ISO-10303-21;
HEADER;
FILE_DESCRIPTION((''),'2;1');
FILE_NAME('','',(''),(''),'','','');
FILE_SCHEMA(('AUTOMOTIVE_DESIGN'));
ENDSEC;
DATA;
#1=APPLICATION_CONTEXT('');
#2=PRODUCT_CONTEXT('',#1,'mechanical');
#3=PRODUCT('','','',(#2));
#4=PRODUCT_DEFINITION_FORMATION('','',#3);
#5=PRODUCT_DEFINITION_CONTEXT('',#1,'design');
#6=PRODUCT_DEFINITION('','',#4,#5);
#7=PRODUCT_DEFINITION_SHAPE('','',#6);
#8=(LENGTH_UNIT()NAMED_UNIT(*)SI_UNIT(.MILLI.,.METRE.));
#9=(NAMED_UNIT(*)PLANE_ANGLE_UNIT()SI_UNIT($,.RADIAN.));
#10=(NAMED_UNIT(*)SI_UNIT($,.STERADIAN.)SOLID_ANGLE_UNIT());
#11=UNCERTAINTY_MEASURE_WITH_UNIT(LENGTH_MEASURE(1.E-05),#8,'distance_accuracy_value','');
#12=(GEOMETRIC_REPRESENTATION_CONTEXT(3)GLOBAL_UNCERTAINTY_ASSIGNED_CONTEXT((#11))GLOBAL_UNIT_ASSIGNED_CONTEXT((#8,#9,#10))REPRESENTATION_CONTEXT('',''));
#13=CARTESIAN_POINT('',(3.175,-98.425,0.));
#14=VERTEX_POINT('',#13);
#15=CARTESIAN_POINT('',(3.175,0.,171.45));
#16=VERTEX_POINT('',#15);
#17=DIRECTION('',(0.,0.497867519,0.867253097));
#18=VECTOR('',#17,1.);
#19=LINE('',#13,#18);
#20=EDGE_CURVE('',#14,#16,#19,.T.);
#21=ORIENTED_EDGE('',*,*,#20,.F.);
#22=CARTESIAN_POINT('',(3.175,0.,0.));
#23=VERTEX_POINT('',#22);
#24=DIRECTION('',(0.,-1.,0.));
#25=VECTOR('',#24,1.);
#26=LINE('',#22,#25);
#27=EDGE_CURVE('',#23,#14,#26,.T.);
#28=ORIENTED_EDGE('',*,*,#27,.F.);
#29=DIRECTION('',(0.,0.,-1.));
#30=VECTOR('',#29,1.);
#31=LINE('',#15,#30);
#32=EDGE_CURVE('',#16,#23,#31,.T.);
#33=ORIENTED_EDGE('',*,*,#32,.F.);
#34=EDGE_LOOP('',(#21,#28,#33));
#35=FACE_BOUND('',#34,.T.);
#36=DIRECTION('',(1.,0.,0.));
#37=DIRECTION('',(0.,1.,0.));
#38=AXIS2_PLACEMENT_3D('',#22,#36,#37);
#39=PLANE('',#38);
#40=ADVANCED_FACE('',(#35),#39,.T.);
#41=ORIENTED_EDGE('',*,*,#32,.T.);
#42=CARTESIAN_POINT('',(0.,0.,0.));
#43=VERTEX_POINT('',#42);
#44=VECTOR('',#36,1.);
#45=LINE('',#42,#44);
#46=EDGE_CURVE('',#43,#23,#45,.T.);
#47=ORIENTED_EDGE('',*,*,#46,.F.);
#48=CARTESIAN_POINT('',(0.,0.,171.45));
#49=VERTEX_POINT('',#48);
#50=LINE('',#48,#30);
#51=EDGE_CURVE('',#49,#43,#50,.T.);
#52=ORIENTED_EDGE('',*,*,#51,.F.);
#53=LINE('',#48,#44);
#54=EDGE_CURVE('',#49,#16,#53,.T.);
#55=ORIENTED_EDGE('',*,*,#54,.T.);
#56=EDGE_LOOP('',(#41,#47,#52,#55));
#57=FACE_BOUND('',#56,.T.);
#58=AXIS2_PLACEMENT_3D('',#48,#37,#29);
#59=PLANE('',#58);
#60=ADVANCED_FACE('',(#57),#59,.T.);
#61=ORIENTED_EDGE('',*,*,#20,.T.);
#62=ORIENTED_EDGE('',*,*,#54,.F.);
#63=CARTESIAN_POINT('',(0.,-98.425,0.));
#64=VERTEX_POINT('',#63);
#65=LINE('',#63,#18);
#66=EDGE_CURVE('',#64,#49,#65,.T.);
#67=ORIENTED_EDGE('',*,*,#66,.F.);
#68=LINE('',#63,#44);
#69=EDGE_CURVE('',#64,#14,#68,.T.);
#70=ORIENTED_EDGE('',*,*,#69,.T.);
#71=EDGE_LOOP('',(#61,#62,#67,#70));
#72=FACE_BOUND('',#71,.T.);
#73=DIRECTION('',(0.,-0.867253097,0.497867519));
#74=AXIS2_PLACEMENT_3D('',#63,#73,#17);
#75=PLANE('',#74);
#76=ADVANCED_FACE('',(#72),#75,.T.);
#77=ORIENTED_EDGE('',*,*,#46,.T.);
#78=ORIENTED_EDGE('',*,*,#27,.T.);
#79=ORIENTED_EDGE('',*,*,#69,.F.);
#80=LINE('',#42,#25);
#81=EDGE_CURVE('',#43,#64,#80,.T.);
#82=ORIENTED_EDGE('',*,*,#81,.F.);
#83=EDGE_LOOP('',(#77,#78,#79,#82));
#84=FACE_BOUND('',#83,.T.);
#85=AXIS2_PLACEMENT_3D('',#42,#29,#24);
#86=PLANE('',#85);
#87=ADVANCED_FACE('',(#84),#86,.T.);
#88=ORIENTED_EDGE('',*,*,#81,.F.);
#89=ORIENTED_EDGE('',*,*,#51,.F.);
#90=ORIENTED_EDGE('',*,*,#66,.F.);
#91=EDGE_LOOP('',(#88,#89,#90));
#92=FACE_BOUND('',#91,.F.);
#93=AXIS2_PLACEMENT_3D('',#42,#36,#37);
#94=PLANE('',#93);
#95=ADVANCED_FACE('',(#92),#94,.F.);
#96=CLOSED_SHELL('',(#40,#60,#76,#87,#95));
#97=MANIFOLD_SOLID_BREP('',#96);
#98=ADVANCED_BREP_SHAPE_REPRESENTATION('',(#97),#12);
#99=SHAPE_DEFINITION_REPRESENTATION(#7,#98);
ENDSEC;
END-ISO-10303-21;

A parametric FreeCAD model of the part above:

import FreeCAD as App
import Part
import Sketcher
Q = App.Units.Quantity


def add_polygon(sketch, points):
    """Adds a closed chain of lines whose ends are joined by coincident constraints."""
    first, n = sketch.GeometryCount, len(points)
    for a, b in zip(points, points[1:] + points[:1]):
        sketch.addGeometry(Part.LineSegment(App.Vector(*a, 0), App.Vector(*b, 0)), False)
    for i in range(n):
        sketch.addConstraint(Sketcher.Constraint("Coincident", first + i, 2, first + (i + 1) % n, 1))

doc = App.newDocument("Part")
params = doc.addObject("Spreadsheet::Sheet", "Params")
for row, (alias, value) in enumerate([
    ("sketch1_height", "6.75 in"),
    ("sketch1_width", "3.875 in"),
    ("pad1_length", "0.125 in"),
], start=1):
    params.set(f"A{row}", alias)
    params.set(f"B{row}", "=" + value)
    params.setAlias(f"B{row}", alias)

body = doc.addObject("PartDesign::Body", "Body")

# Sketch on YZ plane
sketch1 = body.newObject("Sketcher::SketchObject", "Sketch")
sketch1.AttachmentSupport = (doc.getObject("YZ_Plane"), [""])
sketch1.MapMode = "FlatFace"
add_polygon(sketch1, [(0, 0), (0, 171.45), (-98.425, 0)])  # lines 0-2
sketch1.addConstraint([
    Sketcher.Constraint("Vertical", 0),
    Sketcher.Constraint("Horizontal", 2),
    Sketcher.Constraint("Coincident", 2, 2, -1, 1),
    Sketcher.Constraint("DistanceY", 0, 1, 0, 2, Q("6.75 in")),
    Sketcher.Constraint("DistanceX", 2, 1, 2, 2, Q("3.875 in")),
])
sketch1.setExpression("Constraints[6]", "Params.sketch1_height")
sketch1.setExpression("Constraints[7]", "Params.sketch1_width")
pad1 = body.newObject("PartDesign::Pad", "Pad")
pad1.Profile = sketch1
pad1.setExpression("Length", "Params.pad1_length")

doc.recompute()
